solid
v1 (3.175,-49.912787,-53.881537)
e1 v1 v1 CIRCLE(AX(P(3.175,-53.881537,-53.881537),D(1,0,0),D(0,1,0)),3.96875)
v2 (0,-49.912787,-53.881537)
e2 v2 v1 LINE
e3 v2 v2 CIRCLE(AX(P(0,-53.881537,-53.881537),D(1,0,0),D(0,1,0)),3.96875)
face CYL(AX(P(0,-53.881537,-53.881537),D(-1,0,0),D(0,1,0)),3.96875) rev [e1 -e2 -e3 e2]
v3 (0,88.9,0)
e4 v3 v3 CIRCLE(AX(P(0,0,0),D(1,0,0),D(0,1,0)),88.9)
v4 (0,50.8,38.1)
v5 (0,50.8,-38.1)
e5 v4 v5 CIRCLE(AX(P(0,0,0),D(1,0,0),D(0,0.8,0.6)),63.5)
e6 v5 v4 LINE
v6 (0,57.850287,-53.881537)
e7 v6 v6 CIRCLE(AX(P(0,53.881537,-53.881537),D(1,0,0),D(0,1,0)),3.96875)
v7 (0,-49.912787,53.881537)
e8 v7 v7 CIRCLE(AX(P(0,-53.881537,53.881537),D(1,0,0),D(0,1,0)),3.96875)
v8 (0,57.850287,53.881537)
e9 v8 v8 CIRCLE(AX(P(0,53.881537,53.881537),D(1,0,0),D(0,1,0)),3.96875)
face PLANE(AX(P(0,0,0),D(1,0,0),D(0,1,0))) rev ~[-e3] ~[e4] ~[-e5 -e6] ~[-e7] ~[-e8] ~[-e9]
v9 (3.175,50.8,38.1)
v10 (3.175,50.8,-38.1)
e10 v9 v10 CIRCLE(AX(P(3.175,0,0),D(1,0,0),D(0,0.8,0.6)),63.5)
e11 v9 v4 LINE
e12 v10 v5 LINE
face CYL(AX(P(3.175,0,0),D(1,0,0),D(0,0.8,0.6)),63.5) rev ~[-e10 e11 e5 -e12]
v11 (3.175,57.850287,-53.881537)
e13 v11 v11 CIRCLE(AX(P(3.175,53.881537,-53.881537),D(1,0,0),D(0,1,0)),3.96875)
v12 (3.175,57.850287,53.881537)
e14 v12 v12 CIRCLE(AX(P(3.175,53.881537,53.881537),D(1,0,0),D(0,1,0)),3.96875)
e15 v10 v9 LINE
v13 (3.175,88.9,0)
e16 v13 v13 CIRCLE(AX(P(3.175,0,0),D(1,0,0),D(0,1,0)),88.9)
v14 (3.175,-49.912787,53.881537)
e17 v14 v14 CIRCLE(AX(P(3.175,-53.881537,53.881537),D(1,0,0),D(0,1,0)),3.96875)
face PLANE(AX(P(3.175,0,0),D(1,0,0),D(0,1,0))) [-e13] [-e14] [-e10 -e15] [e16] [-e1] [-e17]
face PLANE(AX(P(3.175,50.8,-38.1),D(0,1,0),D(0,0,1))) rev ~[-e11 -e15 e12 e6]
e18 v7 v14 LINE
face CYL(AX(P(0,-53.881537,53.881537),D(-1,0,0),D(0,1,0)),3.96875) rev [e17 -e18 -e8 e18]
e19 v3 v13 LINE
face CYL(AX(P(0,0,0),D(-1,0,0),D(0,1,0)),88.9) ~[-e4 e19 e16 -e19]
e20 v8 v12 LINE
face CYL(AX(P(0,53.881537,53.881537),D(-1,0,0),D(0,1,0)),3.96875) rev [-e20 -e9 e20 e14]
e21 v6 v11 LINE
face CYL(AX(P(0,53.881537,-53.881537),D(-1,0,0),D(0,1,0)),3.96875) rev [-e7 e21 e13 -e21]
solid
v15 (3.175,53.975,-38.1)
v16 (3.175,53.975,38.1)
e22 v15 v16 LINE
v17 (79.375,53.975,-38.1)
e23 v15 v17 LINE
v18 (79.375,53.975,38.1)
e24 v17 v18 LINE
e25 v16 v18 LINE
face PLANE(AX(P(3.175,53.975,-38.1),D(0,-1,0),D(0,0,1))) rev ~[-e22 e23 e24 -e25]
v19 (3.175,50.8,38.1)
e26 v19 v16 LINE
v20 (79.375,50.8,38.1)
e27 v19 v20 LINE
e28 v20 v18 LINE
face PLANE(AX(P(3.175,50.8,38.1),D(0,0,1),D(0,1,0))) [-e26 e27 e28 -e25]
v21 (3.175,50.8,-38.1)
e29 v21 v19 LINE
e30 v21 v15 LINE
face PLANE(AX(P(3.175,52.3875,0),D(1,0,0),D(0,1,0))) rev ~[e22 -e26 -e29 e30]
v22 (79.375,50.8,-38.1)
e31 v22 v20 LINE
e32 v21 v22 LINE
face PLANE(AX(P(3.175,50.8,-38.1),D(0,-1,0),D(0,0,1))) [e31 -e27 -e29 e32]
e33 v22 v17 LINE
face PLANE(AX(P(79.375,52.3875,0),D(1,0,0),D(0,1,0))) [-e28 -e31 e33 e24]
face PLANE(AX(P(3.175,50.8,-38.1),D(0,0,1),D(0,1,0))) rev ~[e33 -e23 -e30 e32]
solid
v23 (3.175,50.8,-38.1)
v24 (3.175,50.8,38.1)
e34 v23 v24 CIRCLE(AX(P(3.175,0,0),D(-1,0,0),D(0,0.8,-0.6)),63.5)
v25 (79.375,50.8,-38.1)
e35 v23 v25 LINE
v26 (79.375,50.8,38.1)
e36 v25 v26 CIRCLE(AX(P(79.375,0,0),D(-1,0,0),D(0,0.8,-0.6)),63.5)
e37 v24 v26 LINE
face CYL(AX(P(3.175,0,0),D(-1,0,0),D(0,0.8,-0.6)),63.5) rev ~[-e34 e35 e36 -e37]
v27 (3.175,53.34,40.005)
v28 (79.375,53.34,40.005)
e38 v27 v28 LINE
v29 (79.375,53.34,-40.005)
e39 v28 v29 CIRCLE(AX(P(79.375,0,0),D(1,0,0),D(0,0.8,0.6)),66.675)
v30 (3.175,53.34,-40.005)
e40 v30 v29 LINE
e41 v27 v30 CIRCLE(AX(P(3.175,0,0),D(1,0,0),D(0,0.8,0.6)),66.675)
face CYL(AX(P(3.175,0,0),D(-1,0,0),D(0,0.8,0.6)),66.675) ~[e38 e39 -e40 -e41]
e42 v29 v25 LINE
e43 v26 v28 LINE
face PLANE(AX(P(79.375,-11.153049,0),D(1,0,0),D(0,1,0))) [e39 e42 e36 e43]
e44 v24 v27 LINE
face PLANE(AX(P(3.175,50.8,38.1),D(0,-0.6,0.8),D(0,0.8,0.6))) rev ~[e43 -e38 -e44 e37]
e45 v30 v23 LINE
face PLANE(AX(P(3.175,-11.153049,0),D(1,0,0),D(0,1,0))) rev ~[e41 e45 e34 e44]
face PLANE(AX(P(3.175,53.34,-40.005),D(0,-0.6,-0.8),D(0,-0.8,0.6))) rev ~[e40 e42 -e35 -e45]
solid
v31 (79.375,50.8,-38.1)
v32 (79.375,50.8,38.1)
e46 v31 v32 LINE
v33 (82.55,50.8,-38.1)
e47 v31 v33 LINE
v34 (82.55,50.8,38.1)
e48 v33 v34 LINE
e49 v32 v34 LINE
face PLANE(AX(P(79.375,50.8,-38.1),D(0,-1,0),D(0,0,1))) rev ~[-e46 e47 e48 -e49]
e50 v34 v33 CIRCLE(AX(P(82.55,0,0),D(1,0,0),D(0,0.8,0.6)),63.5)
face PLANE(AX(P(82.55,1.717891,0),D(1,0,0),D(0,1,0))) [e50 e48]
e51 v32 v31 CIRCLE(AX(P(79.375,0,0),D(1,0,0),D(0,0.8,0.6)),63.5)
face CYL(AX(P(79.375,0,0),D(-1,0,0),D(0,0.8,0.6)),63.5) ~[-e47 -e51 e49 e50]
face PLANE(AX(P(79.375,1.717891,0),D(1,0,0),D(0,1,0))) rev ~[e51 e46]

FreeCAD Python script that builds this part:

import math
import FreeCAD as App
import Part
import Sketcher
Q = App.Units.Quantity


def add_polygon(sketch, points):
    """Adds a closed chain of lines whose ends are joined by coincident constraints."""
    first, n = sketch.GeometryCount, len(points)
    for a, b in zip(points, points[1:] + points[:1]):
        sketch.addGeometry(Part.LineSegment(App.Vector(*a, 0), App.Vector(*b, 0)), False)
    for i in range(n):
        sketch.addConstraint(Sketcher.Constraint("Coincident", first + i, 2, first + (i + 1) % n, 1))

doc = App.newDocument("Part")
params = doc.addObject("Spreadsheet::Sheet", "Params")
for row, (alias, value) in enumerate([
    ("sketch1_diameter", "7 in"),
    ("sketch1_diameter2", "0.3125 in"),
    ("pad1_length", "0.125 in"),
    ("sketch2_radius", "2.5 in"),
    ("sketch2_height", "3 in"),
    ("sketch3_radius", "2.5 in"),
    ("sketch3_radius2", "2.625 in"),
    ("pad2_length", "3 in"),
    ("sketch4_height", "3 in"),
    ("sketch4_width", "0.125 in"),
    ("pad3_length", "3 in"),
    ("sketch5_radius", "2.5 in"),
    ("sketch5_height", "3 in"),
    ("pad4_length", "0.125 in"),
], start=1):
    params.set(f"A{row}", alias)
    params.set(f"B{row}", "=" + value)
    params.setAlias(f"B{row}", alias)

body = doc.addObject("PartDesign::Body", "Body")

# Sketch on YZ plane
sketch1 = body.newObject("Sketcher::SketchObject", "Sketch")
sketch1.AttachmentSupport = (doc.getObject("YZ_Plane"), [""])
sketch1.MapMode = "FlatFace"
sketch1.addGeometry(Part.Circle(App.Vector(0, 0, 0), App.Vector(0, 0, 1), 88.9), False)
sketch1.addGeometry(Part.Circle(App.Vector(-53.9, -53.9, 0), App.Vector(0, 0, 1), 4), False)
sketch1.addGeometry(Part.Circle(App.Vector(53.9, -53.9, 0), App.Vector(0, 0, 1), 4), False)
sketch1.addGeometry(Part.Circle(App.Vector(-53.9, 53.9, 0), App.Vector(0, 0, 1), 4), False)
sketch1.addGeometry(Part.Circle(App.Vector(53.9, 53.9, 0), App.Vector(0, 0, 1), 4), False)
sketch1.addConstraint(Sketcher.Constraint("Coincident", 0, 3, -1, 1))
sketch1.addConstraint(Sketcher.Constraint("Equal", 1, 2))
sketch1.addConstraint(Sketcher.Constraint("Equal", 2, 3))
sketch1.addConstraint(Sketcher.Constraint("Equal", 3, 4))
sketch1.addConstraint(Sketcher.Constraint("Symmetric", 2, 3, 3, 3, -1, 1))
sketch1.addConstraint(Sketcher.Constraint("Symmetric", 1, 3, 4, 3, -1, 1))
sketch1.addConstraint(Sketcher.Constraint("Symmetric", 1, 3, 2, 3, -2))
sketch1.addConstraint(Sketcher.Constraint("Diameter", 0, Q("7 in")))
sketch1.addConstraint(Sketcher.Constraint("Diameter", 1, Q("0.3125 in")))
sketch1.addConstraint(Sketcher.Constraint("DistanceX", 1, 3, -1, 1, 53.881537))
sketch1.addConstraint(Sketcher.Constraint("DistanceY", 1, 3, -1, 1, 53.881537))
sketch1.setExpression("Constraints[7]", "Params.sketch1_diameter")
sketch1.setExpression("Constraints[8]", "Params.sketch1_diameter2")
pad1 = body.newObject("PartDesign::Pad", "Pad")
pad1.Profile = sketch1
pad1.setExpression("Length", "Params.pad1_length")

# Sketch on YZ plane
sketch2 = body.newObject("Sketcher::SketchObject", "Sketch001")
sketch2.AttachmentSupport = (doc.getObject("YZ_Plane"), [""])
sketch2.MapMode = "FlatFace"
sketch2.AttachmentOffset = App.Placement(App.Vector(0, 0, 0.125 * 25.4), App.Rotation())
sketch2.addGeometry(Part.LineSegment(App.Vector(51, -38, 0), App.Vector(51, 38, 0)), False)
sketch2.addGeometry(Part.ArcOfCircle(Part.Circle(App.Vector(0, 0, 0), App.Vector(0, 0, 1), 64), math.radians(37), math.radians(323)), False)
sketch2.addConstraint(Sketcher.Constraint("Coincident", 0, 1, 1, 2))
sketch2.addConstraint(Sketcher.Constraint("Coincident", 1, 1, 0, 2))
sketch2.addConstraint(Sketcher.Constraint("Vertical", 0))
sketch2.addConstraint(Sketcher.Constraint("Coincident", 1, 3, -1, 1))
sketch2.addConstraint(Sketcher.Constraint("Radius", 1, Q("2.5 in")))
sketch2.addConstraint(Sketcher.Constraint("DistanceY", 0, 1, 0, 2, Q("3 in")))
sketch2.setExpression("Constraints[4]", "Params.sketch2_radius")
sketch2.setExpression("Constraints[5]", "Params.sketch2_height")
pocket1 = body.newObject("PartDesign::Pocket", "Pocket")
pocket1.Profile = sketch2
pocket1.Type = "ThroughAll"
body2 = doc.addObject("PartDesign::Body", "Body001")

# Sketch on YZ plane
sketch3 = body2.newObject("Sketcher::SketchObject", "Sketch002")
sketch3.AttachmentSupport = (doc.getObject("YZ_Plane001"), [""])
sketch3.MapMode = "FlatFace"
sketch3.AttachmentOffset = App.Placement(App.Vector(0, 0, 0.125 * 25.4), App.Rotation())
sketch3.addGeometry(Part.ArcOfCircle(Part.Circle(App.Vector(0, 0, 0), App.Vector(0, 0, 1), 63.5), math.radians(37), math.radians(323)), False)
sketch3.addGeometry(Part.LineSegment(App.Vector(50.8, 38.1, 0), App.Vector(53.3, 40, 0)), False)
sketch3.addGeometry(Part.ArcOfCircle(Part.Circle(App.Vector(0, 0, 0), App.Vector(0, 0, 1), 66.7), math.radians(37), math.radians(323)), False)
sketch3.addGeometry(Part.LineSegment(App.Vector(53.3, -40, 0), App.Vector(50.8, -38.1, 0)), False)
sketch3.addConstraint(Sketcher.Constraint("Coincident", 0, 1, 1, 1))
sketch3.addConstraint(Sketcher.Constraint("Coincident", 1, 2, 2, 1))
sketch3.addConstraint(Sketcher.Constraint("Coincident", 2, 2, 3, 1))
sketch3.addConstraint(Sketcher.Constraint("Coincident", 3, 2, 0, 2))
sketch3.addConstraint(Sketcher.Constraint("Coincident", 0, 3, -1, 1))
sketch3.addConstraint(Sketcher.Constraint("Coincident", 2, 3, -1, 1))
sketch3.addConstraint(Sketcher.Constraint("Vertical", 1, 2, 2, 2))
sketch3.addConstraint(Sketcher.Constraint("Vertical", 0, 1, 3, 2))
sketch3.addConstraint(Sketcher.Constraint("Radius", 0, Q("2.5 in")))
sketch3.addConstraint(Sketcher.Constraint("DistanceX", -1, 1, 0, 1, Q("2 in")))
sketch3.addConstraint(Sketcher.Constraint("Radius", 2, Q("2.625 in")))
sketch3.addConstraint(Sketcher.Constraint("DistanceX", -1, 1, 1, 2, Q("2.1 in")))
sketch3.setExpression("Constraints[8]", "Params.sketch3_radius")
sketch3.setExpression("Constraints[10]", "Params.sketch3_radius2")
pad2 = body2.newObject("PartDesign::Pad", "Pad001")
pad2.Profile = sketch3
pad2.setExpression("Length", "Params.pad2_length")
body3 = doc.addObject("PartDesign::Body", "Body002")

# Sketch on YZ plane
sketch4 = body3.newObject("Sketcher::SketchObject", "Sketch003")
sketch4.AttachmentSupport = (doc.getObject("YZ_Plane002"), [""])
sketch4.MapMode = "FlatFace"
sketch4.AttachmentOffset = App.Placement(App.Vector(0, 0, 0.125 * 25.4), App.Rotation())
add_polygon(sketch4, [(50.8, 38.1), (50.8, -38.1), (54, -38.1), (54, 38.1)])  # lines 0-3
sketch4.addConstraint(Sketcher.Constraint("Vertical", 0))
sketch4.addConstraint(Sketcher.Constraint("Horizontal", 1))
sketch4.addConstraint(Sketcher.Constraint("Vertical", 2))
sketch4.addConstraint(Sketcher.Constraint("Horizontal", 3))
sketch4.addConstraint(Sketcher.Constraint("DistanceY", 0, 2, 0, 1, Q("3 in")))
sketch4.addConstraint(Sketcher.Constraint("DistanceX", -1, 1, 0, 2, Q("2 in")))
sketch4.addConstraint(Sketcher.Constraint("DistanceY", 0, 2, -1, 1, Q("1.5 in")))
sketch4.addConstraint(Sketcher.Constraint("DistanceX", 1, 1, 1, 2, Q("0.125 in")))
sketch4.setExpression("Constraints[8]", "Params.sketch4_height")
sketch4.setExpression("Constraints[11]", "Params.sketch4_width")
pad3 = body3.newObject("PartDesign::Pad", "Pad002")
pad3.Profile = sketch4
pad3.setExpression("Length", "Params.pad3_length")
body4 = doc.addObject("PartDesign::Body", "Body003")

# Sketch on YZ plane
sketch5 = body4.newObject("Sketcher::SketchObject", "Sketch004")
sketch5.AttachmentSupport = (doc.getObject("YZ_Plane003"), [""])
sketch5.MapMode = "FlatFace"
sketch5.AttachmentOffset = App.Placement(App.Vector(0, 0, 3.125 * 25.4), App.Rotation())
sketch5.addGeometry(Part.LineSegment(App.Vector(51, -38, 0), App.Vector(51, 38, 0)), False)
sketch5.addGeometry(Part.ArcOfCircle(Part.Circle(App.Vector(0, 0, 0), App.Vector(0, 0, 1), 64), math.radians(37), math.radians(323)), False)
sketch5.addConstraint(Sketcher.Constraint("Coincident", 0, 1, 1, 2))
sketch5.addConstraint(Sketcher.Constraint("Coincident", 1, 1, 0, 2))
sketch5.addConstraint(Sketcher.Constraint("Vertical", 0))
sketch5.addConstraint(Sketcher.Constraint("Coincident", 1, 3, -1, 1))
sketch5.addConstraint(Sketcher.Constraint("Radius", 1, Q("2.5 in")))
sketch5.addConstraint(Sketcher.Constraint("DistanceY", 0, 1, 0, 2, Q("3 in")))
sketch5.setExpression("Constraints[4]", "Params.sketch5_radius")
sketch5.setExpression("Constraints[5]", "Params.sketch5_height")
pad4 = body4.newObject("PartDesign::Pad", "Pad003")
pad4.Profile = sketch5
pad4.setExpression("Length", "Params.pad4_length")

doc.recompute()
